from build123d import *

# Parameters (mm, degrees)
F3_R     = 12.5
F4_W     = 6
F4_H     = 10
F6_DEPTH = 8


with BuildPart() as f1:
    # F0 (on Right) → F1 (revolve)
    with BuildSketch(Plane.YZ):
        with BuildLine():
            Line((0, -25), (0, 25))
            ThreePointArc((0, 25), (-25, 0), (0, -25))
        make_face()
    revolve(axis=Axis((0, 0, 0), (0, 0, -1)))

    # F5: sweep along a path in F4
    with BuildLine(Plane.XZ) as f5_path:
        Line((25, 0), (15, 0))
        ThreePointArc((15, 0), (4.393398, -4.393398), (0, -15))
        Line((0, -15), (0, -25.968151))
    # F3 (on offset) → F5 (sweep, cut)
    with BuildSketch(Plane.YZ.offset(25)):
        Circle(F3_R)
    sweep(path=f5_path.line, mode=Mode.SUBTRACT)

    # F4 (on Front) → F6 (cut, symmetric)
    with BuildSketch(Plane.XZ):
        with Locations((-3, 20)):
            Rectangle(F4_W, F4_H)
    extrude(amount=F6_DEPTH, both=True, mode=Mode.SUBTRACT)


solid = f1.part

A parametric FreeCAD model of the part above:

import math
import FreeCAD as App
import Part
import Sketcher
from FreeCAD import Vector

doc = App.newDocument("Part")
body = doc.addObject("PartDesign::Body", "Body")

sketch1 = body.newObject("Sketcher::SketchObject", "Sketch")
sketch1.AttachmentSupport = (doc.getObject("YZ_Plane"), [""])
sketch1.MapMode = "FlatFace"
sketch1.addGeometry(Part.LineSegment(Vector(0, -25, 0), Vector(0, 25, 0)), False)
sketch1.addGeometry(Part.ArcOfCircle(Part.Circle(Vector(0, 0, 0), Vector(0, 0, 1), 25), math.radians(90), math.radians(270)), False)
sketch1.addConstraint(Sketcher.Constraint("Coincident", 0, 1, 1, 2))
sketch1.addConstraint(Sketcher.Constraint("Coincident", 1, 1, 0, 2))
sketch1.addConstraint(Sketcher.Constraint("Vertical", 0))
sketch1.addConstraint(Sketcher.Constraint("Coincident", 1, 3, -1, 1))
sketch1.addConstraint(Sketcher.Constraint("PointOnObject", 0, 1, -2))
sketch1.addConstraint(Sketcher.Constraint("Radius", 1, 25.0))
revolution = body.newObject("PartDesign::Revolution", "Revolution")
revolution.Profile = sketch1
revolution.ReferenceAxis = (sketch1, ["V_Axis"])
revolution.Angle = 360

sketch2 = body.newObject("Sketcher::SketchObject", "Sketch001")
sketch2.AttachmentSupport = (doc.getObject("YZ_Plane"), [""])
sketch2.MapMode = "FlatFace"
sketch2.AttachmentOffset = App.Placement(Vector(0, 0, 25), App.Rotation())
sketch2.addGeometry(Part.Circle(Vector(0, 0, 0), Vector(0, 0, 1), 12.5), False)
sketch2.addConstraint(Sketcher.Constraint("Coincident", 0, 3, -1, 1))
sketch2.addConstraint(Sketcher.Constraint("Diameter", 0, 25.0))

sketch3 = body.newObject("Sketcher::SketchObject", "Sketch002")
sketch3.AttachmentSupport = (doc.getObject("XZ_Plane"), [""])
sketch3.MapMode = "FlatFace"
sketch3.addGeometry(Part.LineSegment(Vector(25, 0, 0), Vector(15, 0, 0)), False)
sketch3.addGeometry(Part.ArcOfCircle(Part.Circle(Vector(14.999999, -14.999999, 0), Vector(0, 0, 1), 14.999999), math.radians(89.999996), math.radians(180.000004)), False)
sketch3.addGeometry(Part.LineSegment(Vector(0, -15, 0), Vector(0, -25.968151, 0)), False)
sketch3.addConstraint(Sketcher.Constraint("Tangent", 0, 2, 1, 1))
sketch3.addConstraint(Sketcher.Constraint("Tangent", 1, 2, 2, 1))
sketch3.addConstraint(Sketcher.Constraint("Horizontal", 0))
sketch3.addConstraint(Sketcher.Constraint("Vertical", 2))
sketch3.addConstraint(Sketcher.Constraint("PointOnObject", 0, 1, -1))
sketch3.addConstraint(Sketcher.Constraint("PointOnObject", 1, 2, -2))
sketch3.addConstraint(Sketcher.Constraint("Radius", 1, 14.999999))
sketch3.addConstraint(Sketcher.Constraint("DistanceX", 0, 2, 0, 1, 10.0))
sketch3.addConstraint(Sketcher.Constraint("DistanceY", 2, 2, 2, 1, 10.968151))
doc.recompute()

subtractivepipe = body.newObject("PartDesign::SubtractivePipe", "SubtractivePipe")
subtractivepipe.Profile = sketch2
subtractivepipe.Spine = (sketch3, ["Edge1", "Edge2", "Edge3"])

sketch4 = body.newObject("Sketcher::SketchObject", "Sketch003")
sketch4.AttachmentSupport = (doc.getObject("XZ_Plane"), [""])
sketch4.MapMode = "FlatFace"
sketch4.addGeometry(Part.LineSegment(Vector(-6, 25, 0), Vector(-6, 15, 0)), False)
sketch4.addGeometry(Part.LineSegment(Vector(-6, 15, 0), Vector(0, 15, 0)), False)
sketch4.addGeometry(Part.LineSegment(Vector(0, 15, 0), Vector(0, 25, 0)), False)
sketch4.addGeometry(Part.LineSegment(Vector(0, 25, 0), Vector(-6, 25, 0)), False)
sketch4.addConstraint(Sketcher.Constraint("Coincident", 0, 2, 1, 1))
sketch4.addConstraint(Sketcher.Constraint("Coincident", 1, 2, 2, 1))
sketch4.addConstraint(Sketcher.Constraint("Coincident", 2, 2, 3, 1))
sketch4.addConstraint(Sketcher.Constraint("Coincident", 3, 2, 0, 1))
sketch4.addConstraint(Sketcher.Constraint("Vertical", 0))
sketch4.addConstraint(Sketcher.Constraint("Horizontal", 1))
sketch4.addConstraint(Sketcher.Constraint("Vertical", 2))
sketch4.addConstraint(Sketcher.Constraint("Horizontal", 3))
sketch4.addConstraint(Sketcher.Constraint("PointOnObject", 1, 2, -2))
sketch4.addConstraint(Sketcher.Constraint("DistanceX", 1, 1, 1, 2, 6.0))
sketch4.addConstraint(Sketcher.Constraint("DistanceY", 0, 2, 0, 1, 10.0))
sketch4.addConstraint(Sketcher.Constraint("DistanceY", -1, 1, 0, 2, 15.0))
pocket1 = body.newObject("PartDesign::Pocket", "Pocket")
pocket1.Profile = sketch4
pocket1.Length = 16
pocket1.Midplane = True

doc.recompute()
